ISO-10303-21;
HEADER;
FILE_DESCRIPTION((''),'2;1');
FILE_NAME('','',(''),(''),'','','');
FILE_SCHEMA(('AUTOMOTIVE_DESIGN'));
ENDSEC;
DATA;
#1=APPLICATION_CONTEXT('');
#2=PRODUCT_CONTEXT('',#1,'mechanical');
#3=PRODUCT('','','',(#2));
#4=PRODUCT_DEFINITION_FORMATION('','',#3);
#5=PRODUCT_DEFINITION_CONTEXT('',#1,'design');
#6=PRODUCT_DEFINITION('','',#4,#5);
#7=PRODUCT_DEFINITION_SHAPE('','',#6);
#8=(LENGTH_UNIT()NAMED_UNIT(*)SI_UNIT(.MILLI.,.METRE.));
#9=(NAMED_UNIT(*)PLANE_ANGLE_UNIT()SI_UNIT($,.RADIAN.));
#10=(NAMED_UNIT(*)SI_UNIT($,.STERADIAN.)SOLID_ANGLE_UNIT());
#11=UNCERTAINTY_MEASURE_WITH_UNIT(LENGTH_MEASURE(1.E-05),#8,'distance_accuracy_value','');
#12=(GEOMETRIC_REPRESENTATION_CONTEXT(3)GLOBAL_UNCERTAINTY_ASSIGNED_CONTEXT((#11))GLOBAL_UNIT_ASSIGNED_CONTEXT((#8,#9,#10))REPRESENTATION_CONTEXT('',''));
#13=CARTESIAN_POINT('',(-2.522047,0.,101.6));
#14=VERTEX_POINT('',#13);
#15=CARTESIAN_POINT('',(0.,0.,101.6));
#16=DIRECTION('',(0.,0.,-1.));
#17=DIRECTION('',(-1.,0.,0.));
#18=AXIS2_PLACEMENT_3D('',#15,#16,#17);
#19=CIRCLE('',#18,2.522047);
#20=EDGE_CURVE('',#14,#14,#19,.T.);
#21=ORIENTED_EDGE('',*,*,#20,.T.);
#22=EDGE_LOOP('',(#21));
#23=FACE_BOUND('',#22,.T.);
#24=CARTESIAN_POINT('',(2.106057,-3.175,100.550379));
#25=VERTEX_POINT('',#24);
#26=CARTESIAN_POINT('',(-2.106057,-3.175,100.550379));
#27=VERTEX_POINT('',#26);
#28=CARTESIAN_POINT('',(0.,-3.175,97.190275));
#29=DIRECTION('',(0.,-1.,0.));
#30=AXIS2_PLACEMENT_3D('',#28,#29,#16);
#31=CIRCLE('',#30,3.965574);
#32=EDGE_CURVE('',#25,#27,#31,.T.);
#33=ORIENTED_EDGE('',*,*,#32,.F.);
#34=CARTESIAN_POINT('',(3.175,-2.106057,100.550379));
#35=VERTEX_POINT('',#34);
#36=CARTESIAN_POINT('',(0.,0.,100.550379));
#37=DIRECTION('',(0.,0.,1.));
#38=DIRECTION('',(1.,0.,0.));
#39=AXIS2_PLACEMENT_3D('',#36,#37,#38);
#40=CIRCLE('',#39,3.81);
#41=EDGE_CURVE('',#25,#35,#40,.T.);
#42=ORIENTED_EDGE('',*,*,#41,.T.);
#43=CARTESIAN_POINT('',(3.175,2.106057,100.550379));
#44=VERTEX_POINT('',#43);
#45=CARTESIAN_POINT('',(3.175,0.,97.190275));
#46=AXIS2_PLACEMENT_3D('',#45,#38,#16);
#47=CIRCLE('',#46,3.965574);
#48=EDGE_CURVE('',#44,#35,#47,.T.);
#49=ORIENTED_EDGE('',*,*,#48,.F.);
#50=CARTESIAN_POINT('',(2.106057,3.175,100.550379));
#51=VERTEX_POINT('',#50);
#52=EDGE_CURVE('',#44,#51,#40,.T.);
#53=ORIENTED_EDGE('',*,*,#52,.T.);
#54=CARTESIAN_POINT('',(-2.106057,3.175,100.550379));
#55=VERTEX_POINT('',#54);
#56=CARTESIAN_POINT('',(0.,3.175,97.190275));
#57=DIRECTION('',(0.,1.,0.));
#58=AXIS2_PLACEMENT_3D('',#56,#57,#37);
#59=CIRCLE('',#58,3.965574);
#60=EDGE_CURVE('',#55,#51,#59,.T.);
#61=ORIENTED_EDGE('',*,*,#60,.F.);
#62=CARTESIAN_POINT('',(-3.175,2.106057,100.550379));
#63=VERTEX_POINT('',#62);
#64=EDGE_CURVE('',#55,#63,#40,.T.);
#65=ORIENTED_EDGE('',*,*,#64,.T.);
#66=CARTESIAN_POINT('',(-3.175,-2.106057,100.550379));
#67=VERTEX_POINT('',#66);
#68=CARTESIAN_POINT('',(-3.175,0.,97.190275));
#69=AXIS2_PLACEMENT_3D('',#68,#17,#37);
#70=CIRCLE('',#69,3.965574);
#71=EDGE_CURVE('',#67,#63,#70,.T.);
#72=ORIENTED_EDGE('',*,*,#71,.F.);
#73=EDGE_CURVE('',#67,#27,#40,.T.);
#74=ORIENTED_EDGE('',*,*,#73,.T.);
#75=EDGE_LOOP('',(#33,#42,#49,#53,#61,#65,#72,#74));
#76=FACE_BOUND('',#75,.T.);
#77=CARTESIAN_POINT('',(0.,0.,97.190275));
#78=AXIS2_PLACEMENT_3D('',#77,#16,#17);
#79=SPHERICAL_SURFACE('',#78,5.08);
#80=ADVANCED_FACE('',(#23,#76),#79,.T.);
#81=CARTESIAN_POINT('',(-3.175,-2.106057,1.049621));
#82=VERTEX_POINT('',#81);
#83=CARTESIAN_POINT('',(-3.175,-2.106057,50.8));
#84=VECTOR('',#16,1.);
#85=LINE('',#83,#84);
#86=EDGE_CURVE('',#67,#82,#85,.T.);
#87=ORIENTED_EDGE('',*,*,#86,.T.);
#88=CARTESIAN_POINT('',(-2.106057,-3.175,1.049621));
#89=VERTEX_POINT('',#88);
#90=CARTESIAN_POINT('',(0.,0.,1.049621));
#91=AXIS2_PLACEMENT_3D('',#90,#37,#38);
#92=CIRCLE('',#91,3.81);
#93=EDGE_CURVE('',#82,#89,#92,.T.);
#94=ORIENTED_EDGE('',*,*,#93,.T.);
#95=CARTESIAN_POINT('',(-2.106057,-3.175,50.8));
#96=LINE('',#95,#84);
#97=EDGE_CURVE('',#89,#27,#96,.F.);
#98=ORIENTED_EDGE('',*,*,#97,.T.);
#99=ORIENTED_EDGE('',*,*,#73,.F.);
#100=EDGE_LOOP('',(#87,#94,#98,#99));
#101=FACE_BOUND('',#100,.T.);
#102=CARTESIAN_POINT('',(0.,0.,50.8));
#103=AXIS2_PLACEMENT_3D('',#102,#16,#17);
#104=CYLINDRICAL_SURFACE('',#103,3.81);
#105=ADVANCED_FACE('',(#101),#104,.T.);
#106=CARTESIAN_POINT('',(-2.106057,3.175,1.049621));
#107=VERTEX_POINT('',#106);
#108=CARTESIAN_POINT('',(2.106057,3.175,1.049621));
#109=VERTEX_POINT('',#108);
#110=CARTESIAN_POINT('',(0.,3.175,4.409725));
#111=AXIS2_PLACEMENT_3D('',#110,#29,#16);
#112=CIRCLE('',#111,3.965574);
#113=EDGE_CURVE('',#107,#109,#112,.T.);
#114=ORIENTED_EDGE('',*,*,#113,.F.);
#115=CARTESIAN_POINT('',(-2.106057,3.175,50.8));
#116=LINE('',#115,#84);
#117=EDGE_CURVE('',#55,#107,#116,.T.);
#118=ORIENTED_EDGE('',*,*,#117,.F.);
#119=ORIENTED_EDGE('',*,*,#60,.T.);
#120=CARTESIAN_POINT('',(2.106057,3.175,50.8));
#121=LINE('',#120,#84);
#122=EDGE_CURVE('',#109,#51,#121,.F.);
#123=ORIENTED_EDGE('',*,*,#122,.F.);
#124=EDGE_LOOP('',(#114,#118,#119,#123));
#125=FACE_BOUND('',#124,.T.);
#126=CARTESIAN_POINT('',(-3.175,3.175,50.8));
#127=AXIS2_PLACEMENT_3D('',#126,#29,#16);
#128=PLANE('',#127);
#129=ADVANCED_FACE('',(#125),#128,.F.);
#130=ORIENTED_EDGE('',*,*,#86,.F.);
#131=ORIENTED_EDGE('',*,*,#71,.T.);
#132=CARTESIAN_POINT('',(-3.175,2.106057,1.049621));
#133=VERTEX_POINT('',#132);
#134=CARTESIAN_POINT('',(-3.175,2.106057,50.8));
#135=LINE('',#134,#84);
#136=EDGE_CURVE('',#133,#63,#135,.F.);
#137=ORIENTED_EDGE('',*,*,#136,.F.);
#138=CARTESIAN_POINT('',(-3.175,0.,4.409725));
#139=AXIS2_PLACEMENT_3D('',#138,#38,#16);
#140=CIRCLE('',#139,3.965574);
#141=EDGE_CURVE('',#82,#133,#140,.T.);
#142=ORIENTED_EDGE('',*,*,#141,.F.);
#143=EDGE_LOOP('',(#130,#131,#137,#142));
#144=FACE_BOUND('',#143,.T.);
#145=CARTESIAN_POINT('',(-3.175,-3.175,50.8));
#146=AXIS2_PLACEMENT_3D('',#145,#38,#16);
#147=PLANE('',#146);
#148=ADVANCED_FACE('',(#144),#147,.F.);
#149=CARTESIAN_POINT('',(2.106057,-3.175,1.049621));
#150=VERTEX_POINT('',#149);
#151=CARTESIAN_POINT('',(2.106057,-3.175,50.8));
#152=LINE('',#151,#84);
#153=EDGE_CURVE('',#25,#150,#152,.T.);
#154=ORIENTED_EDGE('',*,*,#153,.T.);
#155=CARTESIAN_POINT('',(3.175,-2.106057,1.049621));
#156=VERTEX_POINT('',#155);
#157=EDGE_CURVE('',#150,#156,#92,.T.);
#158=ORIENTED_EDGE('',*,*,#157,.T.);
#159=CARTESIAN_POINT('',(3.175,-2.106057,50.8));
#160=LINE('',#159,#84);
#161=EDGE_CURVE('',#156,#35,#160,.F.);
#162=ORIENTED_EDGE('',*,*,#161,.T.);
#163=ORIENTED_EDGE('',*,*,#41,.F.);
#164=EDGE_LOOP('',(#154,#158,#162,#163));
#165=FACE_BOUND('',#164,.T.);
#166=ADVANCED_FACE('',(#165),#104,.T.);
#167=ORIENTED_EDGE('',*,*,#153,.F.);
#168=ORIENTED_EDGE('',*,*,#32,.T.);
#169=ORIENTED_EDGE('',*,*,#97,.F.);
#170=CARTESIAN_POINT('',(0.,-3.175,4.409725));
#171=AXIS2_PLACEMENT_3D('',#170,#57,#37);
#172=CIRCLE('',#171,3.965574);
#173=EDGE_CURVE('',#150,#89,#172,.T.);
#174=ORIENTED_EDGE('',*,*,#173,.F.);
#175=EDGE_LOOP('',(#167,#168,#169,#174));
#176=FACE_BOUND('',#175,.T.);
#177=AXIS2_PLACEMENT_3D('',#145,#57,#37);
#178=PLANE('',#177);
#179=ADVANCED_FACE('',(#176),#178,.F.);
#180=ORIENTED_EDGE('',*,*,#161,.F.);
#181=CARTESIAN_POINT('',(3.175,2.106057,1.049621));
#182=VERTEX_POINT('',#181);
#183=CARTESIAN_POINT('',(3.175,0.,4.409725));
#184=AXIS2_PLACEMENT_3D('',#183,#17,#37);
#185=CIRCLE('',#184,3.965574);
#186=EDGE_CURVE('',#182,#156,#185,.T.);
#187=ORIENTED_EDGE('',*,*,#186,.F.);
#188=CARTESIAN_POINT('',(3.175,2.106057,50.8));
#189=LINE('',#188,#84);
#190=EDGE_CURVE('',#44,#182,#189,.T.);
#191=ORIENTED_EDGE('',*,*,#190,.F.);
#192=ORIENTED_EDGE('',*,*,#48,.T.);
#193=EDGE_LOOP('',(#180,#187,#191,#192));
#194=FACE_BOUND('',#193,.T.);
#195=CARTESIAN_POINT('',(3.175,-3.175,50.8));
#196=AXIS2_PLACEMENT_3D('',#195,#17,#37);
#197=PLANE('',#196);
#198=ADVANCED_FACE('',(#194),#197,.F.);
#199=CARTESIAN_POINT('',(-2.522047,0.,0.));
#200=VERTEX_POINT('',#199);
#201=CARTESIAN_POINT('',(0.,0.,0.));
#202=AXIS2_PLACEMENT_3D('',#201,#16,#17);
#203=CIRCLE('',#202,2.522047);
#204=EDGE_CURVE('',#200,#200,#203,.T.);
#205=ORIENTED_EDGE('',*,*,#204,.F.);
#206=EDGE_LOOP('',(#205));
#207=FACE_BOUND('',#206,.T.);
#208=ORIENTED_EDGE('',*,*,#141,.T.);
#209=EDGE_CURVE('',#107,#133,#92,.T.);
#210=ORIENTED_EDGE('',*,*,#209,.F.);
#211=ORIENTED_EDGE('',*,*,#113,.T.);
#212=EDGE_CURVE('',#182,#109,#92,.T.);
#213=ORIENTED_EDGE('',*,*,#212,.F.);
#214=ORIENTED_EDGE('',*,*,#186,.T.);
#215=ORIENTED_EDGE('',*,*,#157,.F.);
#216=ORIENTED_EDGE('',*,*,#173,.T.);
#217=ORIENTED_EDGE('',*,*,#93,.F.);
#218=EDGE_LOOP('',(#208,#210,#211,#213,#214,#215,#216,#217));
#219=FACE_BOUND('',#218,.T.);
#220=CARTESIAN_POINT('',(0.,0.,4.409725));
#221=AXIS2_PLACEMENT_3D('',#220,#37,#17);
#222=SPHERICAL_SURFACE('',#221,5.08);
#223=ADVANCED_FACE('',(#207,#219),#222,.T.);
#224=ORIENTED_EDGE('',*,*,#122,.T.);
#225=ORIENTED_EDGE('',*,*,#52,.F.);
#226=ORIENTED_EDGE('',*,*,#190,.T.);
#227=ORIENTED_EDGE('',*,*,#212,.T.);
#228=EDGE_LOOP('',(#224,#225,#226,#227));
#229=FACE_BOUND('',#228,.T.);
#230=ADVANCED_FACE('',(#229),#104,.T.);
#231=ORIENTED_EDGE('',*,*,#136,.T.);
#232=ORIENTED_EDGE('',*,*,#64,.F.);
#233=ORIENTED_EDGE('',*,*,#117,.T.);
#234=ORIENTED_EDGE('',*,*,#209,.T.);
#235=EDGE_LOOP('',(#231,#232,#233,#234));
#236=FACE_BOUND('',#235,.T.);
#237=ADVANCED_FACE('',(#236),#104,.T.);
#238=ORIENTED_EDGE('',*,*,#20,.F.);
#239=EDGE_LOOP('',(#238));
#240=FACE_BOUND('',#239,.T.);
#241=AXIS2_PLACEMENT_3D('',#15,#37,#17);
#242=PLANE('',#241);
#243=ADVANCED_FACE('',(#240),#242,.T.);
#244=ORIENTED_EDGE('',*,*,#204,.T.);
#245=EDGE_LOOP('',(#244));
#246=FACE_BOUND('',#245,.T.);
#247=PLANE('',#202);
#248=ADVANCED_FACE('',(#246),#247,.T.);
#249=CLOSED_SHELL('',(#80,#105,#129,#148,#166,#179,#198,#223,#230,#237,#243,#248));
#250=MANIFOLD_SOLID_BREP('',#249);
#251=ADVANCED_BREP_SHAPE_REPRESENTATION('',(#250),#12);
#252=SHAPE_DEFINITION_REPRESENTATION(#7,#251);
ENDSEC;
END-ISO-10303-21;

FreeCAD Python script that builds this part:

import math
import FreeCAD as App
import Part
import Sketcher
from FreeCAD import Vector
Q = App.Units.Quantity

doc = App.newDocument("Part")
body = doc.addObject("PartDesign::Body", "Body")

# Sketch on XY plane
sketch1 = body.newObject("Sketcher::SketchObject", "Sketch")
sketch1.AttachmentSupport = (doc.getObject("XY_Plane"), [""])
sketch1.MapMode = "FlatFace"
sketch1.addGeometry([
    Part.LineSegment(Vector(-3, 3, 0), Vector(-3, -3, 0)),
    Part.LineSegment(Vector(-3, -3, 0), Vector(3, -3, 0)),
    Part.LineSegment(Vector(3, -3, 0), Vector(3, 3, 0)),
    Part.LineSegment(Vector(3, 3, 0), Vector(-3, 3, 0)),
], False)
sketch1.addConstraint([
    Sketcher.Constraint("Coincident", 0, 2, 1, 1),
    Sketcher.Constraint("Coincident", 1, 2, 2, 1),
    Sketcher.Constraint("Coincident", 2, 2, 3, 1),
    Sketcher.Constraint("Coincident", 3, 2, 0, 1),
    Sketcher.Constraint("Vertical", 0),
    Sketcher.Constraint("Horizontal", 1),
    Sketcher.Constraint("Vertical", 2),
    Sketcher.Constraint("Horizontal", 3),
    Sketcher.Constraint("Symmetric", 0, 2, 2, 2, -1, 1),
    Sketcher.Constraint("Equal", 3, 0),
    Sketcher.Constraint("DistanceX", 1, 1, 1, 2, Q("0.25 in")),
])
pad1 = body.newObject("PartDesign::Pad", "Pad")
pad1.Profile = sketch1
pad1.Length = Q("2 in")

# Sketch on XY plane
sketch2 = body.newObject("Sketcher::SketchObject", "Sketch001")
sketch2.AttachmentSupport = (doc.getObject("XY_Plane"), [""])
sketch2.MapMode = "FlatFace"
sketch2.addGeometry([
    Part.LineSegment(Vector(9.3, 9.3, 0), Vector(9.3, -9.3, 0)),  # 0
    Part.LineSegment(Vector(9.3, -9.3, 0), Vector(-9.3, -9.3, 0)),  # 1
    Part.LineSegment(Vector(-9.3, -9.3, 0), Vector(-9.3, 9.3, 0)),  # 2
    Part.LineSegment(Vector(-9.3, 9.3, 0), Vector(9.3, 9.3, 0)),  # 3
    Part.Circle(Vector(0, 0, 0), Vector(0, 0, 1), 3.8),  # 4
], False)
sketch2.addConstraint([
    Sketcher.Constraint("Coincident", 0, 2, 1, 1),
    Sketcher.Constraint("Coincident", 1, 2, 2, 1),
    Sketcher.Constraint("Coincident", 2, 2, 3, 1),
    Sketcher.Constraint("Coincident", 3, 2, 0, 1),
    Sketcher.Constraint("Vertical", 0),
    Sketcher.Constraint("Horizontal", 1),
    Sketcher.Constraint("Vertical", 2),
    Sketcher.Constraint("Horizontal", 3),
    Sketcher.Constraint("Coincident", 4, 3, -1, 1),
    Sketcher.Constraint("Symmetric", 0, 2, 2, 2, -1, 1),
    Sketcher.Constraint("Equal", 3, 0),
    Sketcher.Constraint("Diameter", 4, Q("0.3 in")),
    Sketcher.Constraint("DistanceX", 1, 2, 1, 1, Q("18.668 mm")),
])
pocket1 = body.newObject("PartDesign::Pocket", "Pocket")
pocket1.Profile = sketch2
pocket1.Type = "ThroughAll"
pocket1.Reversed = True

# Sketch on XZ plane
sketch3 = body.newObject("Sketcher::SketchObject", "Sketch002")
sketch3.AttachmentSupport = (doc.getObject("XZ_Plane"), [""])
sketch3.MapMode = "FlatFace"
sketch3.addGeometry([
    Part.LineSegment(Vector(-5, -6, 0), Vector(-5, 4, 0)),
    Part.ArcOfCircle(Part.Circle(Vector(0, 4, 0), Vector(0, 0, 1), 5), math.radians(-174), math.radians(-90)),
    Part.LineSegment(Vector(0, -1, 0), Vector(0, -6, 0)),
    Part.LineSegment(Vector(0, -6, 0), Vector(-5, -6, 0)),
], False)
sketch3.addConstraint([
    Sketcher.Constraint("Coincident", 0, 2, 1, 1),
    Sketcher.Constraint("Coincident", 1, 2, 2, 1),
    Sketcher.Constraint("Coincident", 2, 2, 3, 1),
    Sketcher.Constraint("Coincident", 3, 2, 0, 1),
    Sketcher.Constraint("Vertical", 0),
    Sketcher.Constraint("Vertical", 2),
    Sketcher.Constraint("Horizontal", 3),
    Sketcher.Constraint("PointOnObject", 1, 3, -2),
    Sketcher.Constraint("PointOnObject", 1, 2, -2),
    Sketcher.Constraint("Radius", 1, Q("0.2 in")),
    Sketcher.Constraint("DistanceX", 3, 2, 3, 1, Q("5.053686 mm")),
    Sketcher.Constraint("DistanceY", 0, 1, 0, 2, Q("9.633866 mm")),
    Sketcher.Constraint("DistanceY", 2, 2, -1, 1, Q("5.740531 mm")),
])
groove = body.newObject("PartDesign::Groove", "Groove")
groove.Profile = sketch3
groove.ReferenceAxis = (sketch3, ["V_Axis"])
groove.Angle = 360
body2 = doc.addObject("PartDesign::Body", "Body001")
doc.recompute()

body2.BaseFeature = body
doc.recompute()

mirroring = doc.addObject("Part::Mirroring", "Mirroring")
mirroring.Source = body
mirroring.Base = Vector(0, 0, 50.8)
mirroring.Normal = Vector(0, 0, -1)
body3 = doc.addObject("PartDesign::Body", "Body002")
body3.BaseFeature = mirroring
boolean = body2.newObject("PartDesign::Boolean", "Boolean")
boolean.Type = "Fuse"
boolean.addObjects([body3])
doc.recompute()
mirroring.Visibility = False

doc.recompute()
